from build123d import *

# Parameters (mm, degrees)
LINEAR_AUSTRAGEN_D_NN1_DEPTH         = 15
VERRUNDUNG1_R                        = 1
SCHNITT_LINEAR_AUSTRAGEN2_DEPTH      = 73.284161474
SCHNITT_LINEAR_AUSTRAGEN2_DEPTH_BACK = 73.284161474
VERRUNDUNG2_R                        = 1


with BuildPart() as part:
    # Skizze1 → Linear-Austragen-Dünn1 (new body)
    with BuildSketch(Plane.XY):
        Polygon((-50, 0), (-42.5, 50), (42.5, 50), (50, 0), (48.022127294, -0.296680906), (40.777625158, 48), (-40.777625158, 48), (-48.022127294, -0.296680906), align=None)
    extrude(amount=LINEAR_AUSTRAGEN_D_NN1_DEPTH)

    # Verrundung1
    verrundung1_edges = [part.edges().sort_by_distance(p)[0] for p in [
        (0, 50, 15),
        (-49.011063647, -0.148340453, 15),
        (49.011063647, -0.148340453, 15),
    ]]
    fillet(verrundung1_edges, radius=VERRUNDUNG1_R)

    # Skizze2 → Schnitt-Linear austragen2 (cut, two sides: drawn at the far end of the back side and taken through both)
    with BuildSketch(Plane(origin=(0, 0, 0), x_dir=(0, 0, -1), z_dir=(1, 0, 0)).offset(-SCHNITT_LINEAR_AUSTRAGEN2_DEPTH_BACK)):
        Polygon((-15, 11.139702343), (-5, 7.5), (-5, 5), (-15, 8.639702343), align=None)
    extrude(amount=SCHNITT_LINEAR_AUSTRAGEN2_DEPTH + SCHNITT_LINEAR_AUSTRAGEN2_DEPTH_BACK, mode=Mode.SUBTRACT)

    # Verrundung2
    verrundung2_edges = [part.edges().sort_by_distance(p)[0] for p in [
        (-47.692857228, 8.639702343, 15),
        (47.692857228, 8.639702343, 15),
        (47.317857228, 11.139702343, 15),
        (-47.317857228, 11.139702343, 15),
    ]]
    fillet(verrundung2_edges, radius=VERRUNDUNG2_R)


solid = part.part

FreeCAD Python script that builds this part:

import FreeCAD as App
import Part
import Sketcher
Q = App.Units.Quantity


def edges_at(feature, points):
    """Names of the edges that pass closest to the given points."""
    edges = feature.Shape.Edges
    near = lambda p: min(range(len(edges)), key=lambda i: edges[i].distToShape(Part.Vertex(*p))[0])
    return sorted({f"Edge{near(p) + 1}" for p in points})

doc = App.newDocument("Part")
params = doc.addObject("Spreadsheet::Sheet", "Params")
for row, (alias, value) in enumerate([
    ("sketch1_width", "85 mm"),
    ("sketch1_length", "2 mm"),
    ("pad1_length", "15 mm"),
    ("fillet_radius", "1 mm"),
    ("sketch2_width", "2.5 mm"),
    ("fillet2_radius", "1 mm"),
], start=1):
    params.set(f"A{row}", alias)
    params.set(f"B{row}", "=" + value)
    params.setAlias(f"B{row}", alias)

body = doc.addObject("PartDesign::Body", "Body")

# Sketch on XY plane
sketch1 = body.newObject("Sketcher::SketchObject", "Sketch")
sketch1.AttachmentSupport = (doc.getObject("XY_Plane"), [""])
sketch1.MapMode = "FlatFace"
sketch1.addGeometry([
    Part.LineSegment(App.Vector(-42.5, 50, 0), App.Vector(-50, 0, 0)),  # 0
    Part.LineSegment(App.Vector(-50, 0, 0), App.Vector(-48, -0.3, 0)),  # 1
    Part.LineSegment(App.Vector(-48, -0.3, 0), App.Vector(-40.8, 48, 0)),  # 2
    Part.LineSegment(App.Vector(-40.8, 48, 0), App.Vector(40.8, 48, 0)),  # 3
    Part.LineSegment(App.Vector(40.8, 48, 0), App.Vector(48, -0.3, 0)),  # 4
    Part.LineSegment(App.Vector(48, -0.3, 0), App.Vector(50, 0, 0)),  # 5
    Part.LineSegment(App.Vector(50, 0, 0), App.Vector(42.5, 50, 0)),  # 6
    Part.LineSegment(App.Vector(42.5, 50, 0), App.Vector(-42.5, 50, 0)),  # 7
], False)
sketch1.addConstraint([
    Sketcher.Constraint("Coincident", 0, 2, 1, 1),
    Sketcher.Constraint("Coincident", 1, 2, 2, 1),
    Sketcher.Constraint("Coincident", 2, 2, 3, 1),
    Sketcher.Constraint("Coincident", 3, 2, 4, 1),
    Sketcher.Constraint("Coincident", 4, 2, 5, 1),
    Sketcher.Constraint("Coincident", 5, 2, 6, 1),
    Sketcher.Constraint("Coincident", 6, 2, 7, 1),
    Sketcher.Constraint("Coincident", 7, 2, 0, 1),
    Sketcher.Constraint("Horizontal", 3),
    Sketcher.Constraint("Horizontal", 7),
    Sketcher.Constraint("Symmetric", 0, 2, 5, 2, -1, 1),
    Sketcher.Constraint("Symmetric", 1, 2, 4, 2, -2),
    Sketcher.Constraint("PointOnObject", 0, 2, -1),
    Sketcher.Constraint("Perpendicular", 0, 1),
    Sketcher.Constraint("Perpendicular", 1, 2),
    Sketcher.Constraint("Perpendicular", 4, 5),
    Sketcher.Constraint("Perpendicular", 5, 6),
    Sketcher.Constraint("DistanceX", 7, 2, 7, 1, Q("85 mm")),
    Sketcher.Constraint("Distance", 1, Q("2 mm")),
    Sketcher.Constraint("DistanceX", 0, 2, -1, 1, Q("50 mm")),
    Sketcher.Constraint("DistanceY", -1, 1, 2, 2, Q("48 mm")),
    Sketcher.Constraint("DistanceY", -1, 1, 6, 2, Q("50 mm")),
])
sketch1.setExpression("Constraints[17]", "Params.sketch1_width")
sketch1.setExpression("Constraints[18]", "Params.sketch1_length")
pad1 = body.newObject("PartDesign::Pad", "Pad")
pad1.Profile = sketch1
pad1.setExpression("Length", "Params.pad1_length")
doc.recompute()

fillet = body.newObject("PartDesign::Fillet", "Fillet")
fillet.Base = (pad1, edges_at(pad1, [(0, 50, 15), (-49.011, -0.148, 15), (49.011, -0.148, 15)]))
fillet.setExpression("Radius", "Params.fillet_radius")

# Sketch on YZ plane
sketch2 = body.newObject("Sketcher::SketchObject", "Sketch001")
sketch2.AttachmentSupport = (doc.getObject("YZ_Plane"), [""])
sketch2.MapMode = "FlatFace"
sketch2.addGeometry([
    Part.LineSegment(App.Vector(7.5, 5, 0), App.Vector(11.1, 15, 0)),
    Part.LineSegment(App.Vector(11.1, 15, 0), App.Vector(8.6, 15, 0)),
    Part.LineSegment(App.Vector(8.6, 15, 0), App.Vector(5, 5, 0)),
    Part.LineSegment(App.Vector(5, 5, 0), App.Vector(7.5, 5, 0)),
], False)
sketch2.addConstraint([
    Sketcher.Constraint("Coincident", 0, 2, 1, 1),
    Sketcher.Constraint("Coincident", 1, 2, 2, 1),
    Sketcher.Constraint("Coincident", 2, 2, 3, 1),
    Sketcher.Constraint("Coincident", 3, 2, 0, 1),
    Sketcher.Constraint("Horizontal", 1),
    Sketcher.Constraint("Horizontal", 3),
    Sketcher.Constraint("Parallel", 0, 2),
    Sketcher.Constraint("Angle", 0, Q("70 deg")),
    Sketcher.Constraint("DistanceX", 1, 2, 1, 1, Q("2.5 mm")),
    Sketcher.Constraint("DistanceY", -1, 1, 0, 2, Q("15 mm")),
    Sketcher.Constraint("DistanceX", -1, 1, 2, 2, Q("5 mm")),
    Sketcher.Constraint("DistanceY", -1, 1, 2, 2, Q("5 mm")),
])
sketch2.setExpression("Constraints[8]", "Params.sketch2_width")
pocket1 = body.newObject("PartDesign::Pocket", "Pocket")
pocket1.Profile = sketch2
pocket1.Type = "ThroughAll"
pocket1.Midplane = True
doc.recompute()

fillet2 = body.newObject("PartDesign::Fillet", "Fillet001")
fillet2.Base = (pocket1, edges_at(pocket1, [
    (-47.693, 8.64, 15),
    (47.693, 8.64, 15),
    (47.318, 11.14, 15),
    (-47.318, 11.14, 15),
]))
fillet2.setExpression("Radius", "Params.fillet2_radius")

doc.recompute()
